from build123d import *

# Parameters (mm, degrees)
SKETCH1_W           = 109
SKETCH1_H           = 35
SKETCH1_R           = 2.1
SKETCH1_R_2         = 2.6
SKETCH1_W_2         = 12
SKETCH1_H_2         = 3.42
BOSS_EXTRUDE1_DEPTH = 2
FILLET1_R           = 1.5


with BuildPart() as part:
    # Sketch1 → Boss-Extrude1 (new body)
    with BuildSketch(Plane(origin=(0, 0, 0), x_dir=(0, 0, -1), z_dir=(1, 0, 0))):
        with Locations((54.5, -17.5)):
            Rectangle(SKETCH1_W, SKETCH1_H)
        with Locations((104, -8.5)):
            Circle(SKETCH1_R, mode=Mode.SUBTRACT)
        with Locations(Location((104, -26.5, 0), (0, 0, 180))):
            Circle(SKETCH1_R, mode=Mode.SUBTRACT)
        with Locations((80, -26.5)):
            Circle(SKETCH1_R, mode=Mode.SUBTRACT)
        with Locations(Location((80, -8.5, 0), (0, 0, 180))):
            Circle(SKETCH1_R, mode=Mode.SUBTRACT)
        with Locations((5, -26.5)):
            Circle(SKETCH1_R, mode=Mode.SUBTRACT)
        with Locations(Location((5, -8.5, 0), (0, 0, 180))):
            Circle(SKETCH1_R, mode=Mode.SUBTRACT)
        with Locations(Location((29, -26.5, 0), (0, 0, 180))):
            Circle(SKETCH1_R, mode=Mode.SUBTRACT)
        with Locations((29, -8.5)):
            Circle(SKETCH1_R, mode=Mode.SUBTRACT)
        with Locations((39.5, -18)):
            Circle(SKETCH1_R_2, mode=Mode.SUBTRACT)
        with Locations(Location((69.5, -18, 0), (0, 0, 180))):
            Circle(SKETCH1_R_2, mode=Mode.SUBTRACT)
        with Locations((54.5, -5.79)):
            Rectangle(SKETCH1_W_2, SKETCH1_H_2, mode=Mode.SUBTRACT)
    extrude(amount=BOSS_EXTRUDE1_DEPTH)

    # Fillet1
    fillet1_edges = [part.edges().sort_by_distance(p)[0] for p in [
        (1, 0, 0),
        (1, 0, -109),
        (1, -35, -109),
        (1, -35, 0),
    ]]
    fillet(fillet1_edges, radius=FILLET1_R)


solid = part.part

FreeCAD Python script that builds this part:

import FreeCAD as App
import Part
import Sketcher

V = App.Vector
Q = App.Units.Quantity


def edges_at(feature, points):
    """Names of the edges that pass closest to the given points."""
    edges = feature.Shape.Edges
    near = lambda p: min(range(len(edges)), key=lambda i: edges[i].distToShape(Part.Vertex(*p))[0])
    return sorted({f"Edge{near(p) + 1}" for p in points})


def add_polygon(sketch, points):
    """Adds a closed chain of lines whose ends are joined by coincident constraints."""
    first, n = sketch.GeometryCount, len(points)
    for a, b in zip(points, points[1:] + points[:1]):
        sketch.addGeometry(Part.LineSegment(App.Vector(*a, 0), App.Vector(*b, 0)), False)
    for i in range(n):
        sketch.addConstraint(Sketcher.Constraint("Coincident", first + i, 2, first + (i + 1) % n, 1))

doc = App.newDocument("Part")
body = doc.addObject("PartDesign::Body", "Body")

# Sketch on YZ plane
sketch1 = body.newObject("Sketcher::SketchObject", "Sketch")
sketch1.AttachmentSupport = (doc.getObject("YZ_Plane"), [""])
sketch1.MapMode = "FlatFace"
add_polygon(sketch1, [(0, 0), (-35, 0), (-35, -109), (0, -109)])  # lines 0-3
sketch1.addGeometry(Part.Circle(V(-26.5, -5, 0), V(0, 0, 1), 2.1), False)  # 4
sketch1.addGeometry(Part.Circle(V(-26.5, -29, 0), V(0, 0, 1), 2.1), False)  # 5
sketch1.addGeometry(Part.Circle(V(-18, -39.5, 0), V(0, 0, 1), 2.6), False)  # 6
sketch1.addGeometry(Part.Circle(V(-26.5, -80, 0), V(0, 0, 1), 2.1), False)  # 7
sketch1.addGeometry(Part.Circle(V(-26.5, -104, 0), V(0, 0, 1), 2.1), False)  # 8
sketch1.addGeometry(Part.Circle(V(-18, -69.5, 0), V(0, 0, 1), 2.6), False)  # 9
sketch1.addGeometry(Part.Circle(V(-8.5, -5, 0), V(0, 0, 1), 2.1), False)  # 10
sketch1.addGeometry(Part.Circle(V(-8.5, -29, 0), V(0, 0, 1), 2.1), False)  # 11
sketch1.addGeometry(Part.Circle(V(-8.5, -80, 0), V(0, 0, 1), 2.1), False)  # 12
add_polygon(sketch1, [(-7.5, -60.5), (-7.5, -48.5), (-4.1, -48.5), (-4.1, -60.5)])  # lines 13-16
sketch1.addGeometry(Part.Circle(V(-8.5, -104, 0), V(0, 0, 1), 2.1), False)  # 17
sketch1.addConstraint(Sketcher.Constraint("Horizontal", 0))
sketch1.addConstraint(Sketcher.Constraint("Vertical", 1))
sketch1.addConstraint(Sketcher.Constraint("Horizontal", 2))
sketch1.addConstraint(Sketcher.Constraint("Vertical", 3))
sketch1.addConstraint(Sketcher.Constraint("Vertical", 13))
sketch1.addConstraint(Sketcher.Constraint("Horizontal", 14))
sketch1.addConstraint(Sketcher.Constraint("Vertical", 15))
sketch1.addConstraint(Sketcher.Constraint("Horizontal", 16))
sketch1.addConstraint(Sketcher.Constraint("Coincident", 3, 2, -1, 1))
sketch1.addConstraint(Sketcher.Constraint("Equal", 4, 5))
sketch1.addConstraint(Sketcher.Constraint("Equal", 5, 7))
sketch1.addConstraint(Sketcher.Constraint("Equal", 7, 8))
sketch1.addConstraint(Sketcher.Constraint("Equal", 6, 9))
sketch1.addConstraint(Sketcher.Constraint("Equal", 8, 10))
sketch1.addConstraint(Sketcher.Constraint("Equal", 10, 11))
sketch1.addConstraint(Sketcher.Constraint("Equal", 11, 12))
sketch1.addConstraint(Sketcher.Constraint("Equal", 12, 17))
sketch1.addConstraint(Sketcher.Constraint("Horizontal", 4, 3, 10, 3))
sketch1.addConstraint(Sketcher.Constraint("Horizontal", 5, 3, 11, 3))
sketch1.addConstraint(Sketcher.Constraint("Horizontal", 7, 3, 12, 3))
sketch1.addConstraint(Sketcher.Constraint("Horizontal", 8, 3, 17, 3))
sketch1.addConstraint(Sketcher.Constraint("Vertical", 4, 3, 5, 3))
sketch1.addConstraint(Sketcher.Constraint("Vertical", 5, 3, 7, 3))
sketch1.addConstraint(Sketcher.Constraint("Vertical", 7, 3, 8, 3))
sketch1.addConstraint(Sketcher.Constraint("Vertical", 6, 3, 9, 3))
sketch1.addConstraint(Sketcher.Constraint("Vertical", 10, 3, 11, 3))
sketch1.addConstraint(Sketcher.Constraint("Vertical", 11, 3, 12, 3))
sketch1.addConstraint(Sketcher.Constraint("Vertical", 12, 3, 17, 3))
sketch1.addConstraint(Sketcher.Constraint("Diameter", 4, Q("4.2 mm")))
sketch1.addConstraint(Sketcher.Constraint("Diameter", 6, Q("5.2 mm")))
sketch1.addConstraint(Sketcher.Constraint("DistanceX", 0, 2, 0, 1, Q("35 mm")))
sketch1.addConstraint(Sketcher.Constraint("DistanceY", 1, 2, 1, 1, Q("109 mm")))
sketch1.addConstraint(Sketcher.Constraint("DistanceY", 13, 1, 13, 2, Q("12 mm")))
sketch1.addConstraint(Sketcher.Constraint("DistanceY", 4, 3, -1, 1, Q("5 mm")))
sketch1.addConstraint(Sketcher.Constraint("DistanceY", 5, 3, -1, 1, Q("29 mm")))
sketch1.addConstraint(Sketcher.Constraint("DistanceX", 6, 3, -1, 1, Q("18 mm")))
sketch1.addConstraint(Sketcher.Constraint("DistanceY", 7, 3, -1, 1, Q("80 mm")))
sketch1.addConstraint(Sketcher.Constraint("DistanceY", 8, 3, -1, 1, Q("104 mm")))
sketch1.addConstraint(Sketcher.Constraint("DistanceY", 9, 3, 6, 3, Q("30 mm")))
sketch1.addConstraint(Sketcher.Constraint("DistanceX", 4, 3, 10, 3, Q("18 mm")))
sketch1.addConstraint(Sketcher.Constraint("DistanceY", 13, 2, 6, 3, Q("9 mm")))
sketch1.addConstraint(Sketcher.Constraint("DistanceX", 11, 3, 13, 2, Q("1 mm")))
sketch1.addConstraint(Sketcher.Constraint("DistanceX", 14, 1, 14, 2, Q("3.42 mm")))
sketch1.addConstraint(Sketcher.Constraint("DistanceX", 4, 3, -1, 1, Q("26.5 mm")))
sketch1.addConstraint(Sketcher.Constraint("DistanceY", 6, 3, -1, 1, Q("39.5 mm")))
pad1 = body.newObject("PartDesign::Pad", "Pad")
pad1.Profile = sketch1
pad1.Length = 2
doc.recompute()

fillet = body.newObject("PartDesign::Fillet", "Fillet")
fillet.Base = (pad1, edges_at(pad1, [
    (1, 0, 0),
    (1, 0, -109),
    (1, -35, -109),
    (1, -35, 0),
]))
fillet.Radius = 1.5

doc.recompute()
